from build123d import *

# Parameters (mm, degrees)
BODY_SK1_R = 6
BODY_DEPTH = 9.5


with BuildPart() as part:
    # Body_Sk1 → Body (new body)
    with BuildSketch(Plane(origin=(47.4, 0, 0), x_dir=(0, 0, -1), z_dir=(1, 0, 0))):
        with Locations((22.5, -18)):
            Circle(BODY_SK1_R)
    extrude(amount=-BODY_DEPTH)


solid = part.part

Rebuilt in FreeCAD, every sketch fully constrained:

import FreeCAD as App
import Part
import Sketcher
from FreeCAD import Vector

doc = App.newDocument("Part")
body = doc.addObject("PartDesign::Body", "Body")

# Sketch on YZ plane
sketch1 = body.newObject("Sketcher::SketchObject", "Sketch")
sketch1.AttachmentSupport = (doc.getObject("YZ_Plane"), [""])
sketch1.MapMode = "FlatFace"
sketch1.AttachmentOffset = App.Placement(Vector(0, 0, 47.4), App.Rotation())
sketch1.addGeometry(Part.Circle(Vector(-18, -22, 0), Vector(0, 0, 1), 6), False)
sketch1.addConstraint([
    Sketcher.Constraint("Diameter", 0, 12.0),
    Sketcher.Constraint("DistanceX", 0, 3, -1, 1, 18.0),
    Sketcher.Constraint("DistanceY", 0, 3, -1, 1, 22.5),
])
pad1 = body.newObject("PartDesign::Pad", "Pad")
pad1.Profile = sketch1
pad1.Length = 9.5
pad1.Reversed = True

doc.recompute()
